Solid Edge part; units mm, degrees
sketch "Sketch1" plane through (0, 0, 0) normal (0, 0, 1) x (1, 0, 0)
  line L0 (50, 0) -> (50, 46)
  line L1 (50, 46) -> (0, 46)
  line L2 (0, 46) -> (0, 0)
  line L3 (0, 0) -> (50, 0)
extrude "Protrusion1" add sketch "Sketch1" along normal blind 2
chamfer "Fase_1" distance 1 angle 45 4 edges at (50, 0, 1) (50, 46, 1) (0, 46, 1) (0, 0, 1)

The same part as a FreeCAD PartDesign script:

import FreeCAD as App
import Part
import Sketcher

V = App.Vector


def edges_at(feature, points):
    """Names of the edges that pass closest to the given points."""
    edges = feature.Shape.Edges
    near = lambda p: min(range(len(edges)), key=lambda i: edges[i].distToShape(Part.Vertex(*p))[0])
    return sorted({f"Edge{near(p) + 1}" for p in points})


def add_polygon(sketch, points):
    """Adds a closed chain of lines whose ends are joined by coincident constraints."""
    first, n = sketch.GeometryCount, len(points)
    for a, b in zip(points, points[1:] + points[:1]):
        sketch.addGeometry(Part.LineSegment(App.Vector(*a, 0), App.Vector(*b, 0)), False)
    for i in range(n):
        sketch.addConstraint(Sketcher.Constraint("Coincident", first + i, 2, first + (i + 1) % n, 1))

doc = App.newDocument("Part")
params = doc.addObject("Spreadsheet::Sheet", "Params")
for row, (alias, value) in enumerate([
    ("sketch1_width", "50 mm"),
    ("sketch1_height", "46 mm"),
    ("pad1_length", "2 mm"),
    ("chamfer_size", "1 mm"),
], start=1):
    params.set(f"A{row}", alias)
    params.set(f"B{row}", "=" + value)
    params.setAlias(f"B{row}", alias)

body = doc.addObject("PartDesign::Body", "Body")

# Sketch on XY plane
sketch1 = doc.addObject("Sketcher::SketchObject", "Sketch")
body.addObject(sketch1)
sketch1.AttachmentSupport = (doc.XY_Plane, [""])
sketch1.MapMode = "FlatFace"
add_polygon(sketch1, [(0, 0), (50, 0), (50, 46), (0, 46)])  # lines 0-3
sketch1.addConstraint([
    Sketcher.Constraint("Horizontal", 0),
    Sketcher.Constraint("Vertical", 1),
    Sketcher.Constraint("Horizontal", 2),
    Sketcher.Constraint("Vertical", 3),
    Sketcher.Constraint("Coincident", 3, 2, -1, 1),
    Sketcher.Constraint("DistanceX", 0, 1, 0, 2, 50.0),
    Sketcher.Constraint("DistanceY", 1, 1, 1, 2, 46.0),
])
sketch1.setExpression("Constraints[9]", "Params.sketch1_width")
sketch1.setExpression("Constraints[10]", "Params.sketch1_height")
pad1 = doc.addObject("PartDesign::Pad", "Pad")
body.addObject(pad1)
pad1.Profile = sketch1
pad1.setExpression("Length", "Params.pad1_length")
doc.recompute()

chamfer = doc.addObject("PartDesign::Chamfer", "Chamfer")
body.addObject(chamfer)
chamfer.Base = (pad1, edges_at(pad1, [
    (50, 0, 1),
    (50, 46, 1),
    (0, 46, 1),
    (0, 0, 1),
]))
chamfer.setExpression("Size", "Params.chamfer_size")

doc.recompute()
